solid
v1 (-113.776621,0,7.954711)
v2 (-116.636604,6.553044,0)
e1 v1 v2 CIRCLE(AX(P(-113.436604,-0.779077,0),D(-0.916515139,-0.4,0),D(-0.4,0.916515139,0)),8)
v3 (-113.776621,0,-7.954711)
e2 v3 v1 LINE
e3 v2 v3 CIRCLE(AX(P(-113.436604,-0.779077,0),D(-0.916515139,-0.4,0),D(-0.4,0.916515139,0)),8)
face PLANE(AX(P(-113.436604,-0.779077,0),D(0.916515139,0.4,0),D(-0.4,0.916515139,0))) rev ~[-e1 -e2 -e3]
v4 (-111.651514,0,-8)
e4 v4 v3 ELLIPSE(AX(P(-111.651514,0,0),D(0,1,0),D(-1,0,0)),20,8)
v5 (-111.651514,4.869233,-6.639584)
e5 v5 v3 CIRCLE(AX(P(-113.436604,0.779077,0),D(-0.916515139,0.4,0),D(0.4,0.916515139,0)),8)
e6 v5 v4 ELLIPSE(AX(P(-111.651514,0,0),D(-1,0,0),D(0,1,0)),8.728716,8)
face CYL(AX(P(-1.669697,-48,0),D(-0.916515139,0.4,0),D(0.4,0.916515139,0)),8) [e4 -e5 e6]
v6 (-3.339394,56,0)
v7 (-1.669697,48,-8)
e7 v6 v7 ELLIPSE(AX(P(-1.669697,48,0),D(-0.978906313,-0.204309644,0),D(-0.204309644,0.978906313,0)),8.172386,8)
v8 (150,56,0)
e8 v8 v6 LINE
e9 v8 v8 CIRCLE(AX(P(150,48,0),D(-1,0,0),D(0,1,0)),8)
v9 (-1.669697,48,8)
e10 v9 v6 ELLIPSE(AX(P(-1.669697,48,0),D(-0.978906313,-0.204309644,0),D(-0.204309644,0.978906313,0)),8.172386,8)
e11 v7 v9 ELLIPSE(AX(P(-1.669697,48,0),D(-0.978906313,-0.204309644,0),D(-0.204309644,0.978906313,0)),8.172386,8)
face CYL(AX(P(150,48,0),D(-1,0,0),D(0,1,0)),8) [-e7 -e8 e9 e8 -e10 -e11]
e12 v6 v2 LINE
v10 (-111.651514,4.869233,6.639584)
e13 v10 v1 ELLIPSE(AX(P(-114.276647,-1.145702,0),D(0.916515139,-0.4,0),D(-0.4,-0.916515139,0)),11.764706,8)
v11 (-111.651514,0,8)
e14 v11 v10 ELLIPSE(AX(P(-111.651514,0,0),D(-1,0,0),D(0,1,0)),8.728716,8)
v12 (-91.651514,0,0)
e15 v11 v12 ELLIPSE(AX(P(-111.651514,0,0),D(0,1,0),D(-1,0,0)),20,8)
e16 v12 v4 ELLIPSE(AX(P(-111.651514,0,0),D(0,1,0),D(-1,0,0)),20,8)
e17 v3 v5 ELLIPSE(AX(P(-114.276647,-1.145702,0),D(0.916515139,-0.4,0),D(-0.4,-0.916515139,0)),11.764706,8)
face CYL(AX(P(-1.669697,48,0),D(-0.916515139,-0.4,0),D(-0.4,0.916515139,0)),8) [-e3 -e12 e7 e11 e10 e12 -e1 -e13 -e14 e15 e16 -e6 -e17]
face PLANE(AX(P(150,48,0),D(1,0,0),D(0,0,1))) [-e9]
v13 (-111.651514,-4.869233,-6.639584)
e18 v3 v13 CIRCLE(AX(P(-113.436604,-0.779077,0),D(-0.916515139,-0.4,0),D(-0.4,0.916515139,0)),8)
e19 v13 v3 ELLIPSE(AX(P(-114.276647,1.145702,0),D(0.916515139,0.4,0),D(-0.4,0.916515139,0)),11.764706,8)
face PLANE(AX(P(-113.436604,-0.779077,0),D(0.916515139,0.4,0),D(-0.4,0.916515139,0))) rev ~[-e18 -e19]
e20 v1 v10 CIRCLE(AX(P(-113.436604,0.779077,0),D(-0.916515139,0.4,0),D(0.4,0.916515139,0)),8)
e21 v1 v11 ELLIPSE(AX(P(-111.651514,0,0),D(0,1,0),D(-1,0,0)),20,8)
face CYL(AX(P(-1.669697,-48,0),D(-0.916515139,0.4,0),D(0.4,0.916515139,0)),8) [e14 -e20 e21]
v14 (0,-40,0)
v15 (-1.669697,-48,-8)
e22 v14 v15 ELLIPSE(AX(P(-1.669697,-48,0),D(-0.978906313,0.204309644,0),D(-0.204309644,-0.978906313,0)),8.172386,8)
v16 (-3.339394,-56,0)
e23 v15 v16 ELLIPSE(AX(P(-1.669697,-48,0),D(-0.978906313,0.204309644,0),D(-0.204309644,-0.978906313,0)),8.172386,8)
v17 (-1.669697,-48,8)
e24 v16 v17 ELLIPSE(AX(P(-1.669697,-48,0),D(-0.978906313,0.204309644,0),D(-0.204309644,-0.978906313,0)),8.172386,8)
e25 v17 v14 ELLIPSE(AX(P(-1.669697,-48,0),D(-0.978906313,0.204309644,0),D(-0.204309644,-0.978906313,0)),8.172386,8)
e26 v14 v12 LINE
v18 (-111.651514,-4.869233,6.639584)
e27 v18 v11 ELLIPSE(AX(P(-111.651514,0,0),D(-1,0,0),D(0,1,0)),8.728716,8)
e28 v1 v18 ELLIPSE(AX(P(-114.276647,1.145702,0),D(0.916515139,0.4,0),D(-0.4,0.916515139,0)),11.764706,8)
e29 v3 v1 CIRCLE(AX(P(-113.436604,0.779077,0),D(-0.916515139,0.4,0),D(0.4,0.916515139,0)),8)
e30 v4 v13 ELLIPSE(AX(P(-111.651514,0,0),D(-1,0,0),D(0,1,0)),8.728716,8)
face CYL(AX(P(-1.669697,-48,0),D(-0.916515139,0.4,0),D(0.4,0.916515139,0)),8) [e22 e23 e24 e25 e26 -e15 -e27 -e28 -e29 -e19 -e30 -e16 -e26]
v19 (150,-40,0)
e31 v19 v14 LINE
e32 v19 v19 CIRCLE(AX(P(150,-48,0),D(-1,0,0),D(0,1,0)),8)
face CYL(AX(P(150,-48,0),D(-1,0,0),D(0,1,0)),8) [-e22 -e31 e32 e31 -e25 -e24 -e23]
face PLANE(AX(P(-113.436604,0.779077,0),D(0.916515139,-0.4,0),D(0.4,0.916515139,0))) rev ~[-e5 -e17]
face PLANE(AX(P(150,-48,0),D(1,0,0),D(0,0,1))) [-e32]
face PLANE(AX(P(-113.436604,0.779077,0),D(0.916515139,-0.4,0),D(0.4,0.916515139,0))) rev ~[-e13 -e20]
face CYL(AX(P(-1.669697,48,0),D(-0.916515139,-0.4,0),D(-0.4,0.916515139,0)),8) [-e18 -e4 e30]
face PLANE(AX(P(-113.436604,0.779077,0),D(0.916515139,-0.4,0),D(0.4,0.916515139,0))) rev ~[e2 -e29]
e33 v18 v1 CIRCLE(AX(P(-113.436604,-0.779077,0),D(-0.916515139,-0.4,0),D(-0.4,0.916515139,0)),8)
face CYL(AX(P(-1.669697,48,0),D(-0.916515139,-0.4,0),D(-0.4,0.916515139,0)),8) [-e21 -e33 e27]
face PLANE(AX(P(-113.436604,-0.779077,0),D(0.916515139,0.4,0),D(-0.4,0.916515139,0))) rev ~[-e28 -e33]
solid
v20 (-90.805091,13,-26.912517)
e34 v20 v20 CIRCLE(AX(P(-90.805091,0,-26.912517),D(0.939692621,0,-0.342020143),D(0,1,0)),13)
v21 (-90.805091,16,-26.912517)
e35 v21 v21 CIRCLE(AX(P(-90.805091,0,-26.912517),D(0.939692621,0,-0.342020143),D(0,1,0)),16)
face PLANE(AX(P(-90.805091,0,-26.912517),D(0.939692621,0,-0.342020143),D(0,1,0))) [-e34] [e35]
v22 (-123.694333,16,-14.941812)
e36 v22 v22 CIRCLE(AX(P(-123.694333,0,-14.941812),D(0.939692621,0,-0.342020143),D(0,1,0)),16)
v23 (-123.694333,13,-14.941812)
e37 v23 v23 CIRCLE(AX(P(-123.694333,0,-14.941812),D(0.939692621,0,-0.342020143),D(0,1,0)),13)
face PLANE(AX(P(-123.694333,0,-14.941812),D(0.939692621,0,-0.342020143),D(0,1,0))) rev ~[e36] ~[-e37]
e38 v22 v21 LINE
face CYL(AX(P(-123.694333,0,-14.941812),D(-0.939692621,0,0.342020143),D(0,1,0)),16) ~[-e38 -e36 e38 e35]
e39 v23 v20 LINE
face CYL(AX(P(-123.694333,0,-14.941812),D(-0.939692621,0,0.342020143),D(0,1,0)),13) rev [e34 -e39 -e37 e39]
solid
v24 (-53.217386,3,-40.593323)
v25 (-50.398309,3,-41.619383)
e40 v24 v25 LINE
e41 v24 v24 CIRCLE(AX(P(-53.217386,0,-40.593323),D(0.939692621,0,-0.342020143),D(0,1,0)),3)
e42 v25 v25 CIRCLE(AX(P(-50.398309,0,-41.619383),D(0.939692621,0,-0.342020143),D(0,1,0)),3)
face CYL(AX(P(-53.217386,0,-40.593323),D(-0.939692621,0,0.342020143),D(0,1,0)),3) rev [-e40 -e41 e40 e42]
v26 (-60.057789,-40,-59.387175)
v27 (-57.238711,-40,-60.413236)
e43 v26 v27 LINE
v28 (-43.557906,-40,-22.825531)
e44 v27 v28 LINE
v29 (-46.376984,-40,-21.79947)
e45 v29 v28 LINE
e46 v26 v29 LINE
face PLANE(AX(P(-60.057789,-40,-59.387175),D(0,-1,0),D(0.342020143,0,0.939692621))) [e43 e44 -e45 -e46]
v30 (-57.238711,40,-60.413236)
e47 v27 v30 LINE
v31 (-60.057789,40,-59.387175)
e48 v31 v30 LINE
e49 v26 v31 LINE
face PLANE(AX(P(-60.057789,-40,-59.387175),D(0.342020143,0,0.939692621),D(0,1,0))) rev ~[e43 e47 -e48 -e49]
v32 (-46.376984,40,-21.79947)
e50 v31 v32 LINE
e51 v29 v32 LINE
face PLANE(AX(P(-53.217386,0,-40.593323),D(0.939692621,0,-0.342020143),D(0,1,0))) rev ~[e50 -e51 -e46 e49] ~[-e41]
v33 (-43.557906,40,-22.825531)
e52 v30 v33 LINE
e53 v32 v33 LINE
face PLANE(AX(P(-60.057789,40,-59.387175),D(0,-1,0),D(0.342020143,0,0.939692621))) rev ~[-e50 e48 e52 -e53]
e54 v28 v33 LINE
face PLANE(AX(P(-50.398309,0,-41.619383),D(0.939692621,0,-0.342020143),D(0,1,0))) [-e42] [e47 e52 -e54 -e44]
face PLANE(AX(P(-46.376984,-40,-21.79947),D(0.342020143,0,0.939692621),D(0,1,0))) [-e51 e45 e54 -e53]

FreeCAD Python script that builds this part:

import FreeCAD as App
import Part
import Sketcher

V = App.Vector


def add_polygon(sketch, points):
    """Adds a closed chain of lines whose ends are joined by coincident constraints."""
    first, n = sketch.GeometryCount, len(points)
    for a, b in zip(points, points[1:] + points[:1]):
        sketch.addGeometry(Part.LineSegment(App.Vector(*a, 0), App.Vector(*b, 0)), False)
    for i in range(n):
        sketch.addConstraint(Sketcher.Constraint("Coincident", first + i, 2, first + (i + 1) % n, 1))

doc = App.newDocument("Part")
body = doc.addObject("PartDesign::Body", "Body")

# Sketch on YZ plane
sketch1 = body.newObject("Sketcher::SketchObject", "Sketch")
sketch1.AttachmentSupport = (doc.getObject("YZ_Plane"), [""])
sketch1.MapMode = "FlatFace"
sketch1.AttachmentOffset = App.Placement(V(0, 0, 150), App.Rotation())
sketch1.addGeometry(Part.Circle(V(-48, 0, 0), V(0, 0, 1), 8), False)
sketch1.addConstraint([
    Sketcher.Constraint("PointOnObject", 0, 3, -1),
    Sketcher.Constraint("Diameter", 0, 16.0),
    Sketcher.Constraint("DistanceX", 0, 3, -1, 1, 48.0),
])

# Sketch on XY plane
sketch2 = body.newObject("Sketcher::SketchObject", "Sketch001")
sketch2.AttachmentSupport = (doc.getObject("XY_Plane"), [""])
sketch2.MapMode = "FlatFace"
sketch2.addGeometry([
    Part.LineSegment(V(150, -48, 0), V(-2, -48, 0)),
    Part.LineSegment(V(-2, -48, 0), V(-113, 1, 0)),
], False)
sketch2.addConstraint([
    Sketcher.Constraint("Coincident", 0, 2, 1, 1),
    Sketcher.Constraint("Horizontal", 0),
    Sketcher.Constraint("DistanceX", -1, 1, 0, 1, 150.0),
    Sketcher.Constraint("DistanceY", 0, 1, -1, 1, 48.0),
    Sketcher.Constraint("DistanceX", 0, 2, 0, 1, 151.669697),
    Sketcher.Constraint("Distance", 1, 121.947693),
    Sketcher.Constraint("DistanceX", 1, 2, -1, 1, 113.436604),
])
doc.recompute()

additivepipe = body.newObject("PartDesign::AdditivePipe", "AdditivePipe")
additivepipe.Profile = sketch1
additivepipe.Spine = (sketch2, ["Edge1", "Edge2"])
additivepipe.Transition = "Right corner"

# Sketch on YZ plane
sketch3 = body.newObject("Sketcher::SketchObject", "Sketch002")
sketch3.AttachmentSupport = (doc.getObject("YZ_Plane"), [""])
sketch3.MapMode = "FlatFace"
sketch3.AttachmentOffset = App.Placement(V(0, 0, 150), App.Rotation())
sketch3.addGeometry(Part.Circle(V(48, 0, 0), V(0, 0, 1), 8), False)
sketch3.addConstraint([
    Sketcher.Constraint("PointOnObject", 0, 3, -1),
    Sketcher.Constraint("Diameter", 0, 16.0),
    Sketcher.Constraint("DistanceX", -1, 1, 0, 3, 48.0),
])

# Sketch on XY plane
sketch4 = body.newObject("Sketcher::SketchObject", "Sketch003")
sketch4.AttachmentSupport = (doc.getObject("XY_Plane"), [""])
sketch4.MapMode = "FlatFace"
sketch4.addGeometry([
    Part.LineSegment(V(150, 48, 0), V(-2, 48, 0)),
    Part.LineSegment(V(-2, 48, 0), V(-113, -1, 0)),
], False)
sketch4.addConstraint([
    Sketcher.Constraint("Coincident", 0, 2, 1, 1),
    Sketcher.Constraint("Horizontal", 0),
    Sketcher.Constraint("DistanceX", -1, 1, 0, 1, 150.0),
    Sketcher.Constraint("DistanceY", -1, 1, 0, 1, 48.0),
    Sketcher.Constraint("DistanceX", 0, 2, 0, 1, 151.669697),
    Sketcher.Constraint("Distance", 1, 121.947693),
    Sketcher.Constraint("DistanceX", 1, 2, -1, 1, 113.436604),
])
doc.recompute()

additivepipe2 = body.newObject("PartDesign::AdditivePipe", "AdditivePipe001")
additivepipe2.Profile = sketch3
additivepipe2.Spine = (sketch4, ["Edge1", "Edge2"])
additivepipe2.Transition = "Right corner"
body2 = doc.addObject("PartDesign::Body", "Body001")

# Sketch on an angled plane
sketch5 = body2.newObject("Sketcher::SketchObject", "Sketch004")
sketch5.Placement = App.Placement(V(-104.422639, 0, 38.006732), App.Rotation(V(0, 1, 0), V(0.342020143, 0, 0.939692621), V(0.939692621, 0, -0.342020143), "ZXY"))
sketch5.addGeometry([
    Part.Circle(V(0, -56, 0), V(0, 0, 1), 16),
    Part.Circle(V(0, -56, 0), V(0, 0, 1), 13),
], False)
sketch5.addConstraint([
    Sketcher.Constraint("Coincident", 1, 3, 0, 3),
    Sketcher.Constraint("PointOnObject", 0, 3, -2),
    Sketcher.Constraint("Diameter", 0, 32.0),
    Sketcher.Constraint("Diameter", 1, 26.0),
    Sketcher.Constraint("DistanceY", 0, 3, -1, 1, 56.346664),
])
pad1 = body2.newObject("PartDesign::Pad", "Pad")
pad1.Profile = sketch5
pad1.Length = 35
body3 = doc.addObject("PartDesign::Body", "Body002")

# Sketch on an angled plane
sketch6 = body3.newObject("Sketcher::SketchObject", "Sketch005")
sketch6.Placement = App.Placement(V(-33.945692, 0, 12.355222), App.Rotation(V(0, 1, 0), V(0.342020143, 0, 0.939692621), V(0.939692621, 0, -0.342020143), "ZXY"))
add_polygon(sketch6, [(-40, -36.3), (-40, -76.3), (40, -76.3), (40, -36.3)])  # lines 0-3
sketch6.addGeometry(Part.Circle(V(0, -56.3, 0), V(0, 0, 1), 3), False)  # 4
sketch6.addConstraint([
    Sketcher.Constraint("Vertical", 0),
    Sketcher.Constraint("Horizontal", 1),
    Sketcher.Constraint("Vertical", 2),
    Sketcher.Constraint("Horizontal", 3),
    Sketcher.Constraint("PointOnObject", 4, 3, -2),
    Sketcher.Constraint("Diameter", 4, 6.0),
    Sketcher.Constraint("DistanceX", 1, 1, 1, 2, 80.0),
    Sketcher.Constraint("DistanceY", 0, 2, 0, 1, 40.0),
    Sketcher.Constraint("DistanceX", 0, 2, -1, 1, 40.0),
    Sketcher.Constraint("DistanceY", 0, 2, 4, 3, 20.0),
    Sketcher.Constraint("DistanceY", 4, 3, -1, 1, 56.346664),
])
pad2 = body3.newObject("PartDesign::Pad", "Pad001")
pad2.Profile = sketch6
pad2.Length = 3

doc.recompute()
